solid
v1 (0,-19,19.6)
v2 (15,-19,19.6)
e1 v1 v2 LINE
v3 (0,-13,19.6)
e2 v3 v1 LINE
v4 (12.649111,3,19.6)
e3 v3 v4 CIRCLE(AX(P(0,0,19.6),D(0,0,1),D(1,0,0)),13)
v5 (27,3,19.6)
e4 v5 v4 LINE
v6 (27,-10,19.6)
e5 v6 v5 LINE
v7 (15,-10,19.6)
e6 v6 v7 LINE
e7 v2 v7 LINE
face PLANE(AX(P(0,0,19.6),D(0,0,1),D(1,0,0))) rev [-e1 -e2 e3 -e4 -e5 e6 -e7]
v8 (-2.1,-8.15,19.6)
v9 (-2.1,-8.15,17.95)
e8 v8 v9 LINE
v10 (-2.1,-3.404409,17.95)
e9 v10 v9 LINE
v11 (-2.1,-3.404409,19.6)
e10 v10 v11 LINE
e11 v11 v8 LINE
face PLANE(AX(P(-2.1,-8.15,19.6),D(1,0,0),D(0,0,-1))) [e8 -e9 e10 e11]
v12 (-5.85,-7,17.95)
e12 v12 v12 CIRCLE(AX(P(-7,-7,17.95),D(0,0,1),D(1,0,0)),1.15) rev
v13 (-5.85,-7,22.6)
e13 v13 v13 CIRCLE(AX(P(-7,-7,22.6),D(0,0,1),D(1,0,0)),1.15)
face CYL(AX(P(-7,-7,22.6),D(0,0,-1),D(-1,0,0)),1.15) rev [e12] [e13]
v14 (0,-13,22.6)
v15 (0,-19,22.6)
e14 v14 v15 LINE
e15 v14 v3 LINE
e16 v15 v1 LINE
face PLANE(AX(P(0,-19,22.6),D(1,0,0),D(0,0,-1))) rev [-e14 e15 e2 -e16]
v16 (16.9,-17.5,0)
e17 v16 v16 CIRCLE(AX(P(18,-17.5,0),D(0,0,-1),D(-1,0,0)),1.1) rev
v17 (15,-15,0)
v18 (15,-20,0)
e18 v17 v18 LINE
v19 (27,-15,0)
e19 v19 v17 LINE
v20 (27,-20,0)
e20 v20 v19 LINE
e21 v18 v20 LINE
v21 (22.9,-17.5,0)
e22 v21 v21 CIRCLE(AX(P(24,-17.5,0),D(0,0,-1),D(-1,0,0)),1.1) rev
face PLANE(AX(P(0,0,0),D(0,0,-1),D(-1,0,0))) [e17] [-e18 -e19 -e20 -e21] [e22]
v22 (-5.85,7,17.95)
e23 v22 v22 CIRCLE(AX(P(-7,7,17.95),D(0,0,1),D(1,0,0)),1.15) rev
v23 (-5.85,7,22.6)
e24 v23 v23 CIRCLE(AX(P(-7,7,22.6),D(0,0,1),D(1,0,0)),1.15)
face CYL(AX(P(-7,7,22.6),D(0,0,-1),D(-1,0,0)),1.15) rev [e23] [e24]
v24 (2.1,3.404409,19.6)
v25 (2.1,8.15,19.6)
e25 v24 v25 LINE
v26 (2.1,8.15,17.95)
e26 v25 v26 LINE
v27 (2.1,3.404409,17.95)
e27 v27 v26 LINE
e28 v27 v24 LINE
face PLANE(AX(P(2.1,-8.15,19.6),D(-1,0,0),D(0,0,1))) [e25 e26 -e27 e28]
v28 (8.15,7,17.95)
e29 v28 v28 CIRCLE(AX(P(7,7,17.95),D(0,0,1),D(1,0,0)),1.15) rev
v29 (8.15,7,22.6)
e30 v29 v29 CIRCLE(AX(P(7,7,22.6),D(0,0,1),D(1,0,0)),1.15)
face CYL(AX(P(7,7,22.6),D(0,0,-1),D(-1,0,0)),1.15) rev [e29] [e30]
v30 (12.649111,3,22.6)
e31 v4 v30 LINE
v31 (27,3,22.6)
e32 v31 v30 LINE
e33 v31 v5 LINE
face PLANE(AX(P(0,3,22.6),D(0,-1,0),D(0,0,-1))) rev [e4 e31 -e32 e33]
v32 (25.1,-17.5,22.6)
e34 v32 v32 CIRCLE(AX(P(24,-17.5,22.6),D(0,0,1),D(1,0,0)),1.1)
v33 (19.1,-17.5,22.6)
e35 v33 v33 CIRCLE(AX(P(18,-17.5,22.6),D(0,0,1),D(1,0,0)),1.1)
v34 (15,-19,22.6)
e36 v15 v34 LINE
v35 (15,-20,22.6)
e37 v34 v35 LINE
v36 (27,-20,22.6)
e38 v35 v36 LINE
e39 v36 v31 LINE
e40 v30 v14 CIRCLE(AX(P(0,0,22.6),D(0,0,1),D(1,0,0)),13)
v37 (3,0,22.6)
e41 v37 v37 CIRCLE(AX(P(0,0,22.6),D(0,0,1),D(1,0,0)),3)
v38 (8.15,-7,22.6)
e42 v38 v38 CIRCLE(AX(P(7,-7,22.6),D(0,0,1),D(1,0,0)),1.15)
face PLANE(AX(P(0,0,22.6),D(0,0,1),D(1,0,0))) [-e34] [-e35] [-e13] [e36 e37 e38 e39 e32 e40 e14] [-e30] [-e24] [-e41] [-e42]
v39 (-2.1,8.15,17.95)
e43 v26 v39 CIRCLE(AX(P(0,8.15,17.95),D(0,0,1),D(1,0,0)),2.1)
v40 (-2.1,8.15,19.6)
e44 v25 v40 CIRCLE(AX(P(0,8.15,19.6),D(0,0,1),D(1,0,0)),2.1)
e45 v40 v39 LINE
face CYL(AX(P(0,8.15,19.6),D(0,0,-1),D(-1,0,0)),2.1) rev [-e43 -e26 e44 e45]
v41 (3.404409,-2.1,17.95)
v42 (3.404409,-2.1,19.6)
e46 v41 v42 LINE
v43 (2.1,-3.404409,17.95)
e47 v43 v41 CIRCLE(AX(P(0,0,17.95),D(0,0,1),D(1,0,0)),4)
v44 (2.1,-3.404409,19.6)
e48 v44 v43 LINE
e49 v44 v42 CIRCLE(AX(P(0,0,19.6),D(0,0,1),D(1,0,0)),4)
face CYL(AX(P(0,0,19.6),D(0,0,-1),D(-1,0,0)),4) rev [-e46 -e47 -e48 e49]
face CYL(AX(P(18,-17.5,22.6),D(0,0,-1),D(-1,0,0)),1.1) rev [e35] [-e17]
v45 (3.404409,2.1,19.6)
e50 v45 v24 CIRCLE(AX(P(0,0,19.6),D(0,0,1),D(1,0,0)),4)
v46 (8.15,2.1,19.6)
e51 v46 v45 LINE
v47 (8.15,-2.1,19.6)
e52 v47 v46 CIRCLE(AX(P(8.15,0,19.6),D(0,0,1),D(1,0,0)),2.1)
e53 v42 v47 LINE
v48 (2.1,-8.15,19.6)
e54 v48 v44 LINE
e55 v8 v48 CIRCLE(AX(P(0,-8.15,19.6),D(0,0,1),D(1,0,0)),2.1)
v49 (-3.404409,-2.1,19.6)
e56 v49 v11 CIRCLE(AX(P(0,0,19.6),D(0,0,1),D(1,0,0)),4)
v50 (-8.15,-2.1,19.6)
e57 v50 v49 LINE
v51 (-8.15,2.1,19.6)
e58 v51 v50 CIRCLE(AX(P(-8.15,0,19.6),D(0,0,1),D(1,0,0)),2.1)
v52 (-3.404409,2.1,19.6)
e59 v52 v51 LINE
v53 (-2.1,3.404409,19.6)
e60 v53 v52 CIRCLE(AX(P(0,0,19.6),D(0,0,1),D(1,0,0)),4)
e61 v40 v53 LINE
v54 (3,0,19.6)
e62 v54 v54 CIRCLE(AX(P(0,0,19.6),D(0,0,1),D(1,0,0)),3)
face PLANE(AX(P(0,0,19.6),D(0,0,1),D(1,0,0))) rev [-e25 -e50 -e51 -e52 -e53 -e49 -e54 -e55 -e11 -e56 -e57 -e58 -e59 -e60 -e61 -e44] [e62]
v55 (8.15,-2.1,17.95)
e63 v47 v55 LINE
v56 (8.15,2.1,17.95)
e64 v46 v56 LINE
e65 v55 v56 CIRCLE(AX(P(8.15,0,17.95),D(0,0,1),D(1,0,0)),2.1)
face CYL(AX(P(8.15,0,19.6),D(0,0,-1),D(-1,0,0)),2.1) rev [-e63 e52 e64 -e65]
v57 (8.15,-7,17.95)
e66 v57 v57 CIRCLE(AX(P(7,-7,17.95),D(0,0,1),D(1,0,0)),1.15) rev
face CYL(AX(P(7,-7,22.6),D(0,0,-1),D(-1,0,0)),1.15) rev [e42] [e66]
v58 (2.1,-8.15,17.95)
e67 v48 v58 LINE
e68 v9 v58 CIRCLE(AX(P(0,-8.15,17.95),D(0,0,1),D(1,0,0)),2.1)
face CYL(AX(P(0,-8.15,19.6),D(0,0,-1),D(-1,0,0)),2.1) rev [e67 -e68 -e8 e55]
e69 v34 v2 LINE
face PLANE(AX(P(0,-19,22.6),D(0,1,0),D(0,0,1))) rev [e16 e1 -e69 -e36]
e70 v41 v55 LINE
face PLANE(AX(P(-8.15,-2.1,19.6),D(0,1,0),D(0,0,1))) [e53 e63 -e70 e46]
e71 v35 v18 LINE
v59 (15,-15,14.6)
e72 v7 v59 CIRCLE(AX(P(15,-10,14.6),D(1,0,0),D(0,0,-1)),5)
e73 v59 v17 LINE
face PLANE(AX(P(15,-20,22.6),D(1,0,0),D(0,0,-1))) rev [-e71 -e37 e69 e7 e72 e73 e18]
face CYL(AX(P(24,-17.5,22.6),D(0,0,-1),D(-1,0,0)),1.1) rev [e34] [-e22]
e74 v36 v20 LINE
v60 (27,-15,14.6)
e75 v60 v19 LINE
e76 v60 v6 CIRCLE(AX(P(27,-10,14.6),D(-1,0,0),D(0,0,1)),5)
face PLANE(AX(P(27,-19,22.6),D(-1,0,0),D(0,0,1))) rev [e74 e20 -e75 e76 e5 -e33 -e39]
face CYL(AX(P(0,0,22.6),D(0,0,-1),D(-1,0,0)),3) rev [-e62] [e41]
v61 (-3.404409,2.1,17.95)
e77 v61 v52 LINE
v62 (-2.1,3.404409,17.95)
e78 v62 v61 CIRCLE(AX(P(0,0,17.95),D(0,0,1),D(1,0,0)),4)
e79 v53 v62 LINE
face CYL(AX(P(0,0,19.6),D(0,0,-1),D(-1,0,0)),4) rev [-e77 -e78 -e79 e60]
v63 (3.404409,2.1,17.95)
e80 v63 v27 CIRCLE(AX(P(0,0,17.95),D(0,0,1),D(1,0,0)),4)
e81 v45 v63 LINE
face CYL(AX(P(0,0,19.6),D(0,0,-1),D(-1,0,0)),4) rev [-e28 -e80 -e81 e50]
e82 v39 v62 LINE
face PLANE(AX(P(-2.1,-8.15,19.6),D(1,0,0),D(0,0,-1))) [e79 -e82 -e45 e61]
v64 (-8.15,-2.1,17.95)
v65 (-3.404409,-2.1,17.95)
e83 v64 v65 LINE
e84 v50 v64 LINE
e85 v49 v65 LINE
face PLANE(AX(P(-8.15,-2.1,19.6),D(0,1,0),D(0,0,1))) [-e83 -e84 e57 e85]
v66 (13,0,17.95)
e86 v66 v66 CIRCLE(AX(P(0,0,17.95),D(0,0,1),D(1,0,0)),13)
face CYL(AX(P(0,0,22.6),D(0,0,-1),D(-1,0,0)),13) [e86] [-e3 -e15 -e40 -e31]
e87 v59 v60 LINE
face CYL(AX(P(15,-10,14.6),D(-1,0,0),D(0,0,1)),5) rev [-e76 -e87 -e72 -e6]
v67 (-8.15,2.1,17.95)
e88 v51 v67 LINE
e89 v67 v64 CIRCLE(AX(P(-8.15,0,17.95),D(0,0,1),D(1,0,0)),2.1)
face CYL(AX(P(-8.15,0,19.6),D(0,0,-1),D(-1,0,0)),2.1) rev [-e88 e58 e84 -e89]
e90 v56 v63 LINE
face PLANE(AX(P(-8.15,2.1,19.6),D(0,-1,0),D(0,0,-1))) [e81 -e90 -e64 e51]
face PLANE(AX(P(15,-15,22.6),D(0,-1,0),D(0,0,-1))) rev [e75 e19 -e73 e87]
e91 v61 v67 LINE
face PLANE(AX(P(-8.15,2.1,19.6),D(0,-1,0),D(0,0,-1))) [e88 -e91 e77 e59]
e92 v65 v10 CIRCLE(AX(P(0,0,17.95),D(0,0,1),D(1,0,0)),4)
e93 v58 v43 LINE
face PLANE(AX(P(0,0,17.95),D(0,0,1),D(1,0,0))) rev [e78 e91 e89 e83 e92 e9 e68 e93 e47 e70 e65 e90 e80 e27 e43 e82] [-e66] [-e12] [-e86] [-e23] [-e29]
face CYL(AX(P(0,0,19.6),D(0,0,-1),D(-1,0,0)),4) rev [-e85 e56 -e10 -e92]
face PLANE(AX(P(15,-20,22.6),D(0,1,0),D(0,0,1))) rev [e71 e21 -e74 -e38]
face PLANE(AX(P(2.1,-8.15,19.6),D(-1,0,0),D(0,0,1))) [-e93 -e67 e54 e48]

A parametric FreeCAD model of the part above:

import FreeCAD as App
import Part
import Sketcher

V = App.Vector
Q = App.Units.Quantity


def edges_at(feature, points):
    """Names of the edges that pass closest to the given points."""
    edges = feature.Shape.Edges
    near = lambda p: min(range(len(edges)), key=lambda i: edges[i].distToShape(Part.Vertex(*p))[0])
    return sorted({f"Edge{near(p) + 1}" for p in points})


def add_polygon(sketch, points):
    """Adds a closed chain of lines whose ends are joined by coincident constraints."""
    first, n = sketch.GeometryCount, len(points)
    for a, b in zip(points, points[1:] + points[:1]):
        sketch.addGeometry(Part.LineSegment(App.Vector(*a, 0), App.Vector(*b, 0)), False)
    for i in range(n):
        sketch.addConstraint(Sketcher.Constraint("Coincident", first + i, 2, first + (i + 1) % n, 1))

doc = App.newDocument("Part")
params = doc.addObject("Spreadsheet::Sheet", "Params")
for row, (alias, value) in enumerate([
    ("sketch1_diameter", "26 mm"),
    ("pad1_length", "3 mm"),
    ("sketch2_width", "27 mm"),
    ("sketch2_height", "22 mm"),
    ("pad2_length", "3 mm"),
    ("sketch3_width", "12 mm"),
    ("sketch3_height", "5 mm"),
    ("pad3_length", "22.6 mm"),
    ("sketch4_diameter", "6 mm"),
    ("sketch5_diameter", "26 mm"),
    ("pad4_length", "1.65 mm"),
    ("sketch6_diameter", "7.1 mm"),
    ("pocket2_length", "1.65 mm"),
    ("sketch7_width", "16.3 mm"),
    ("sketch7_height", "4.2 mm"),
    ("pocket3_length", "1.65 mm"),
    ("sketch8_width", "4.2 mm"),
    ("sketch8_height", "16.3 mm"),
    ("pocket4_length", "1.65 mm"),
    ("sketch9_diameter", "4.2 mm"),
    ("pocket5_length", "1.65 mm"),
    ("sketch10_diameter", "2.3 mm"),
    ("sketch11_diameter", "8 mm"),
    ("pocket7_length", "1.65 mm"),
    ("sketch12_diameter", "2.2 mm"),
    ("fillet_radius", "5 mm"),
], start=1):
    params.set(f"A{row}", alias)
    params.set(f"B{row}", "=" + value)
    params.setAlias(f"B{row}", alias)

body = doc.addObject("PartDesign::Body", "Body")

sketch1 = doc.addObject("Sketcher::SketchObject", "Sketch")
body.addObject(sketch1)
sketch1.AttachmentSupport = (doc.XY_Plane, [""])
sketch1.MapMode = "FlatFace"
sketch1.AttachmentOffset = App.Placement(V(0, 0, 19.6), App.Rotation())
sketch1.addGeometry(Part.Circle(V(0, 0, 0), V(0, 0, 1), 13), False)
sketch1.addConstraint([
    Sketcher.Constraint("Coincident", 0, 3, -1, 1),
    Sketcher.Constraint("Diameter", 0, Q("26 mm")),
])
sketch1.setExpression("Constraints[1]", "Params.sketch1_diameter")
pad1 = doc.addObject("PartDesign::Pad", "Pad")
body.addObject(pad1)
pad1.Profile = sketch1
pad1.setExpression("Length", "Params.pad1_length")

sketch2 = doc.addObject("Sketcher::SketchObject", "Sketch001")
body.addObject(sketch2)
sketch2.AttachmentSupport = (doc.XY_Plane, [""])
sketch2.MapMode = "FlatFace"
sketch2.AttachmentOffset = App.Placement(V(0, 0, 19.6), App.Rotation())
add_polygon(sketch2, [(0, 3), (0, -19), (27, -19), (27, 3)])
sketch2.addConstraint([
    Sketcher.Constraint("Vertical", 0),
    Sketcher.Constraint("Horizontal", 1),
    Sketcher.Constraint("Vertical", 2),
    Sketcher.Constraint("Horizontal", 3),
    Sketcher.Constraint("PointOnObject", 0, 2, -2),
    Sketcher.Constraint("DistanceX", 1, 1, 1, 2, Q("27 mm")),
    Sketcher.Constraint("DistanceY", 0, 2, 0, 1, Q("22 mm")),
    Sketcher.Constraint("DistanceY", 0, 2, -1, 1, Q("19 mm")),
])
sketch2.setExpression("Constraints[9]", "Params.sketch2_width")
sketch2.setExpression("Constraints[10]", "Params.sketch2_height")
pad2 = doc.addObject("PartDesign::Pad", "Pad001")
body.addObject(pad2)
pad2.Profile = sketch2
pad2.setExpression("Length", "Params.pad2_length")

sketch3 = doc.addObject("Sketcher::SketchObject", "Sketch002")
body.addObject(sketch3)
sketch3.AttachmentSupport = (doc.XY_Plane, [""])
sketch3.MapMode = "FlatFace"
add_polygon(sketch3, [(15, -15), (15, -20), (27, -20), (27, -15)])
sketch3.addConstraint([
    Sketcher.Constraint("Vertical", 0),
    Sketcher.Constraint("Horizontal", 1),
    Sketcher.Constraint("Vertical", 2),
    Sketcher.Constraint("Horizontal", 3),
    Sketcher.Constraint("DistanceX", 1, 1, 1, 2, Q("12 mm")),
    Sketcher.Constraint("DistanceY", 0, 2, 0, 1, Q("5 mm")),
    Sketcher.Constraint("DistanceX", -1, 1, 0, 2, Q("15 mm")),
    Sketcher.Constraint("DistanceY", 0, 2, -1, 1, Q("20 mm")),
])
sketch3.setExpression("Constraints[8]", "Params.sketch3_width")
sketch3.setExpression("Constraints[9]", "Params.sketch3_height")
pad3 = doc.addObject("PartDesign::Pad", "Pad002")
body.addObject(pad3)
pad3.Profile = sketch3
pad3.setExpression("Length", "Params.pad3_length")

sketch4 = doc.addObject("Sketcher::SketchObject", "Sketch003")
body.addObject(sketch4)
sketch4.AttachmentSupport = (doc.XY_Plane, [""])
sketch4.MapMode = "FlatFace"
sketch4.AttachmentOffset = App.Placement(V(0, 0, -50), App.Rotation())
sketch4.addGeometry(Part.Circle(V(0, 0, 0), V(0, 0, 1), 3), False)
sketch4.addConstraint([
    Sketcher.Constraint("Coincident", 0, 3, -1, 1),
    Sketcher.Constraint("Diameter", 0, Q("6 mm")),
])
sketch4.setExpression("Constraints[1]", "Params.sketch4_diameter")
pocket1 = doc.addObject("PartDesign::Pocket", "Pocket")
body.addObject(pocket1)
pocket1.Profile = sketch4
pocket1.Type = "ThroughAll"
pocket1.Reversed = True

sketch5 = doc.addObject("Sketcher::SketchObject", "Sketch004")
body.addObject(sketch5)
sketch5.AttachmentSupport = (doc.XY_Plane, [""])
sketch5.MapMode = "FlatFace"
sketch5.AttachmentOffset = App.Placement(V(0, 0, 17.95), App.Rotation())
sketch5.addGeometry(Part.Circle(V(0, 0, 0), V(0, 0, 1), 13), False)
sketch5.addConstraint([
    Sketcher.Constraint("Coincident", 0, 3, -1, 1),
    Sketcher.Constraint("Diameter", 0, Q("26 mm")),
])
sketch5.setExpression("Constraints[1]", "Params.sketch5_diameter")
pad4 = doc.addObject("PartDesign::Pad", "Pad003")
body.addObject(pad4)
pad4.Profile = sketch5
pad4.setExpression("Length", "Params.pad4_length")

sketch6 = doc.addObject("Sketcher::SketchObject", "Sketch005")
body.addObject(sketch6)
sketch6.AttachmentSupport = (doc.XY_Plane, [""])
sketch6.MapMode = "FlatFace"
sketch6.AttachmentOffset = App.Placement(V(0, 0, 17.95), App.Rotation())
sketch6.addGeometry(Part.Circle(V(0, 0, 0), V(0, 0, 1), 3.5), False)
sketch6.addConstraint([
    Sketcher.Constraint("Coincident", 0, 3, -1, 1),
    Sketcher.Constraint("Diameter", 0, Q("7.1 mm")),
])
sketch6.setExpression("Constraints[1]", "Params.sketch6_diameter")
pocket2 = doc.addObject("PartDesign::Pocket", "Pocket001")
body.addObject(pocket2)
pocket2.Profile = sketch6
pocket2.setExpression("Length", "Params.pocket2_length")
pocket2.Reversed = True

sketch7 = doc.addObject("Sketcher::SketchObject", "Sketch006")
body.addObject(sketch7)
sketch7.AttachmentSupport = (doc.XY_Plane, [""])
sketch7.MapMode = "FlatFace"
sketch7.AttachmentOffset = App.Placement(V(0, 0, 17.95), App.Rotation())
add_polygon(sketch7, [(-8.2, 2.1), (-8.2, -2.1), (8.2, -2.1), (8.2, 2.1)])
sketch7.addConstraint([
    Sketcher.Constraint("Vertical", 0),
    Sketcher.Constraint("Horizontal", 1),
    Sketcher.Constraint("Vertical", 2),
    Sketcher.Constraint("Horizontal", 3),
    Sketcher.Constraint("Symmetric", 0, 2, 2, 2, -1, 1),
    Sketcher.Constraint("DistanceX", 1, 1, 1, 2, Q("16.3 mm")),
    Sketcher.Constraint("DistanceY", 0, 2, 0, 1, Q("4.2 mm")),
])
sketch7.setExpression("Constraints[9]", "Params.sketch7_width")
sketch7.setExpression("Constraints[10]", "Params.sketch7_height")
pocket3 = doc.addObject("PartDesign::Pocket", "Pocket002")
body.addObject(pocket3)
pocket3.Profile = sketch7
pocket3.setExpression("Length", "Params.pocket3_length")
pocket3.Reversed = True

sketch8 = doc.addObject("Sketcher::SketchObject", "Sketch007")
body.addObject(sketch8)
sketch8.AttachmentSupport = (doc.XY_Plane, [""])
sketch8.MapMode = "FlatFace"
sketch8.AttachmentOffset = App.Placement(V(0, 0, 17.95), App.Rotation())
add_polygon(sketch8, [(-2.1, 8.2), (-2.1, -8.2), (2.1, -8.2), (2.1, 8.2)])
sketch8.addConstraint([
    Sketcher.Constraint("Vertical", 0),
    Sketcher.Constraint("Horizontal", 1),
    Sketcher.Constraint("Vertical", 2),
    Sketcher.Constraint("Horizontal", 3),
    Sketcher.Constraint("Symmetric", 0, 2, 2, 2, -1, 1),
    Sketcher.Constraint("DistanceX", 1, 1, 1, 2, Q("4.2 mm")),
    Sketcher.Constraint("DistanceY", 0, 2, 0, 1, Q("16.3 mm")),
])
sketch8.setExpression("Constraints[9]", "Params.sketch8_width")
sketch8.setExpression("Constraints[10]", "Params.sketch8_height")
pocket4 = doc.addObject("PartDesign::Pocket", "Pocket003")
body.addObject(pocket4)
pocket4.Profile = sketch8
pocket4.setExpression("Length", "Params.pocket4_length")
pocket4.Reversed = True

sketch9 = doc.addObject("Sketcher::SketchObject", "Sketch008")
body.addObject(sketch9)
sketch9.AttachmentSupport = (doc.XY_Plane, [""])
sketch9.MapMode = "FlatFace"
sketch9.AttachmentOffset = App.Placement(V(0, 0, 17.95), App.Rotation())
sketch9.addGeometry([
    Part.Circle(V(8.2, 0, 0), V(0, 0, 1), 2.1),
    Part.Circle(V(-8.2, 0, 0), V(0, 0, 1), 2.1),
    Part.Circle(V(0, 8.2, 0), V(0, 0, 1), 2.1),
    Part.Circle(V(0, -8.2, 0), V(0, 0, 1), 2.1),
], False)
sketch9.addConstraint([
    Sketcher.Constraint("Equal", 0, 1),
    Sketcher.Constraint("Equal", 1, 2),
    Sketcher.Constraint("Equal", 2, 3),
    Sketcher.Constraint("Symmetric", 0, 3, 1, 3, -1, 1),
    Sketcher.Constraint("Symmetric", 2, 3, 3, 3, -1, 1),
    Sketcher.Constraint("PointOnObject", 0, 3, -1),
    Sketcher.Constraint("PointOnObject", 2, 3, -2),
    Sketcher.Constraint("Diameter", 0, Q("4.2 mm")),
    Sketcher.Constraint("DistanceX", 1, 3, 0, 3, Q("16.3 mm")),
    Sketcher.Constraint("DistanceY", 3, 3, 2, 3, Q("16.3 mm")),
])
sketch9.setExpression("Constraints[7]", "Params.sketch9_diameter")
pocket5 = doc.addObject("PartDesign::Pocket", "Pocket004")
body.addObject(pocket5)
pocket5.Profile = sketch9
pocket5.setExpression("Length", "Params.pocket5_length")
pocket5.Reversed = True

sketch10 = doc.addObject("Sketcher::SketchObject", "Sketch009")
body.addObject(sketch10)
sketch10.AttachmentSupport = (doc.XY_Plane, [""])
sketch10.MapMode = "FlatFace"
sketch10.AttachmentOffset = App.Placement(V(0, 0, -50), App.Rotation())
sketch10.addGeometry([
    Part.Circle(V(7, 7, 0), V(0, 0, 1), 1.1),
    Part.Circle(V(-7, 7, 0), V(0, 0, 1), 1.1),
    Part.Circle(V(-7, -7, 0), V(0, 0, 1), 1.1),
    Part.Circle(V(7, -7, 0), V(0, 0, 1), 1.1),
], False)
sketch10.addConstraint([
    Sketcher.Constraint("Equal", 0, 1),
    Sketcher.Constraint("Equal", 1, 2),
    Sketcher.Constraint("Equal", 2, 3),
    Sketcher.Constraint("Symmetric", 0, 3, 2, 3, -1, 1),
    Sketcher.Constraint("Symmetric", 1, 3, 3, 3, -1, 1),
    Sketcher.Constraint("Symmetric", 0, 3, 1, 3, -2),
    Sketcher.Constraint("Diameter", 0, Q("2.3 mm")),
    Sketcher.Constraint("DistanceX", -1, 1, 0, 3, Q("7 mm")),
    Sketcher.Constraint("DistanceY", -1, 1, 0, 3, Q("7 mm")),
])
sketch10.setExpression("Constraints[6]", "Params.sketch10_diameter")
pocket6 = doc.addObject("PartDesign::Pocket", "Pocket005")
body.addObject(pocket6)
pocket6.Profile = sketch10
pocket6.Type = "ThroughAll"
pocket6.Reversed = True

sketch11 = doc.addObject("Sketcher::SketchObject", "Sketch010")
body.addObject(sketch11)
sketch11.AttachmentSupport = (doc.XY_Plane, [""])
sketch11.MapMode = "FlatFace"
sketch11.AttachmentOffset = App.Placement(V(0, 0, 17.95), App.Rotation())
sketch11.addGeometry(Part.Circle(V(0, 0, 0), V(0, 0, 1), 4), False)
sketch11.addConstraint([
    Sketcher.Constraint("Coincident", 0, 3, -1, 1),
    Sketcher.Constraint("Diameter", 0, Q("8 mm")),
])
sketch11.setExpression("Constraints[1]", "Params.sketch11_diameter")
pocket7 = doc.addObject("PartDesign::Pocket", "Pocket006")
body.addObject(pocket7)
pocket7.Profile = sketch11
pocket7.setExpression("Length", "Params.pocket7_length")
pocket7.Reversed = True

sketch12 = doc.addObject("Sketcher::SketchObject", "Sketch011")
body.addObject(sketch12)
sketch12.AttachmentSupport = (doc.XY_Plane, [""])
sketch12.MapMode = "FlatFace"
sketch12.AttachmentOffset = App.Placement(V(0, 0, -50), App.Rotation())
sketch12.addGeometry([
    Part.Circle(V(18, -17.5, 0), V(0, 0, 1), 1.1),
    Part.Circle(V(24, -17.5, 0), V(0, 0, 1), 1.1),
], False)
sketch12.addConstraint([
    Sketcher.Constraint("Equal", 0, 1),
    Sketcher.Constraint("Horizontal", 0, 3, 1, 3),
    Sketcher.Constraint("Diameter", 0, Q("2.2 mm")),
    Sketcher.Constraint("DistanceX", -1, 1, 0, 3, Q("18 mm")),
    Sketcher.Constraint("DistanceX", -1, 1, 1, 3, Q("24 mm")),
    Sketcher.Constraint("DistanceY", 0, 3, -1, 1, Q("17.5 mm")),
])
sketch12.setExpression("Constraints[2]", "Params.sketch12_diameter")
pocket8 = doc.addObject("PartDesign::Pocket", "Pocket007")
body.addObject(pocket8)
pocket8.Profile = sketch12
pocket8.Type = "ThroughAll"
pocket8.Reversed = True
doc.recompute()

fillet = doc.addObject("PartDesign::Fillet", "Fillet")
body.addObject(fillet)
fillet.Base = (pocket8, edges_at(pocket8, [(21, -15, 19.6)]))
fillet.setExpression("Radius", "Params.fillet_radius")

doc.recompute()
